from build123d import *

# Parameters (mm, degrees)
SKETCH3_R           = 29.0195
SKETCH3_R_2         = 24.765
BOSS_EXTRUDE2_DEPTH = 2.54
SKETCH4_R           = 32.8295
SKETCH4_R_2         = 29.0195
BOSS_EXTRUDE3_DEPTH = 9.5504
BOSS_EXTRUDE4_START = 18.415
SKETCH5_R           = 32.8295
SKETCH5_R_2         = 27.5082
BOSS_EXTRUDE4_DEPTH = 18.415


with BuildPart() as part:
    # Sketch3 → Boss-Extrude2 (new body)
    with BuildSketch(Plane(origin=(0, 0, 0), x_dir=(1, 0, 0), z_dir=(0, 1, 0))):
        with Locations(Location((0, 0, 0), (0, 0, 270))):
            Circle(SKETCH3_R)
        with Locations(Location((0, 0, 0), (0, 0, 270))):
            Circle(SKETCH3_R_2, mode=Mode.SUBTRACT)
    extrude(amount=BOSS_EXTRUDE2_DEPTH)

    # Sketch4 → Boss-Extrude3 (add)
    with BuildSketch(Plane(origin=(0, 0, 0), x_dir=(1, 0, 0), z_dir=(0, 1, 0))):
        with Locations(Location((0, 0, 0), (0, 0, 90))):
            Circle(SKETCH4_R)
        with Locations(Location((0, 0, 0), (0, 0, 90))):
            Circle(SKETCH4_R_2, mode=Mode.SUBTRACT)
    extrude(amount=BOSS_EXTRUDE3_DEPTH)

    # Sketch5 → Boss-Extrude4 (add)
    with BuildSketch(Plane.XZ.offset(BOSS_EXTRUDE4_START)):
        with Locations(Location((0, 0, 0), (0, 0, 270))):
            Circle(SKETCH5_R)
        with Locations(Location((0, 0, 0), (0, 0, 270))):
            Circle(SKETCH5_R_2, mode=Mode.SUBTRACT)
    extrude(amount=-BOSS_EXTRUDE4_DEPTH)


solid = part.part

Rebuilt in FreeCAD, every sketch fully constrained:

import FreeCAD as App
import Part
import Sketcher
Q = App.Units.Quantity

doc = App.newDocument("Part")
params = doc.addObject("Spreadsheet::Sheet", "Params")
for row, (alias, value) in enumerate([
    ("sketch1_diameter", "1.95 in"),
    ("sketch1_diameter2", "2.285 in"),
    ("pad1_length", "0.1 in"),
    ("sketch2_diameter", "2.585 in"),
    ("sketch2_diameter2", "2.285 in"),
    ("pad2_length", "0.376 in"),
    ("sketch3_diameter", "2.585 in"),
    ("sketch3_diameter2", "2.166 in"),
    ("pad3_length", "0.725 in"),
], start=1):
    params.set(f"A{row}", alias)
    params.set(f"B{row}", "=" + value)
    params.setAlias(f"B{row}", alias)

body = doc.addObject("PartDesign::Body", "Body")

# Sketch on XZ plane
sketch1 = body.newObject("Sketcher::SketchObject", "Sketch")
sketch1.AttachmentSupport = (doc.getObject("XZ_Plane"), [""])
sketch1.MapMode = "FlatFace"
sketch1.addGeometry([
    Part.Circle(App.Vector(0, 0, 0), App.Vector(0, 0, 1), 29),
    Part.Circle(App.Vector(0, 0, 0), App.Vector(0, 0, 1), 25),
], False)
sketch1.addConstraint([
    Sketcher.Constraint("Coincident", 0, 3, -1, 1),
    Sketcher.Constraint("Coincident", 1, 3, -1, 1),
    Sketcher.Constraint("Diameter", 1, Q("1.95 in")),
    Sketcher.Constraint("Diameter", 0, Q("2.285 in")),
])
sketch1.setExpression("Constraints[2]", "Params.sketch1_diameter")
sketch1.setExpression("Constraints[3]", "Params.sketch1_diameter2")
pad1 = body.newObject("PartDesign::Pad", "Pad")
pad1.Profile = sketch1
pad1.setExpression("Length", "Params.pad1_length")
pad1.Reversed = True

# Sketch on XZ plane
sketch2 = body.newObject("Sketcher::SketchObject", "Sketch001")
sketch2.AttachmentSupport = (doc.getObject("XZ_Plane"), [""])
sketch2.MapMode = "FlatFace"
sketch2.addGeometry([
    Part.Circle(App.Vector(0, 0, 0), App.Vector(0, 0, 1), 33),
    Part.Circle(App.Vector(0, 0, 0), App.Vector(0, 0, 1), 29),
], False)
sketch2.addConstraint([
    Sketcher.Constraint("Coincident", 0, 3, -1, 1),
    Sketcher.Constraint("Coincident", 1, 3, -1, 1),
    Sketcher.Constraint("Diameter", 0, Q("2.585 in")),
    Sketcher.Constraint("Diameter", 1, Q("2.285 in")),
])
sketch2.setExpression("Constraints[2]", "Params.sketch2_diameter")
sketch2.setExpression("Constraints[3]", "Params.sketch2_diameter2")
pad2 = body.newObject("PartDesign::Pad", "Pad001")
pad2.Profile = sketch2
pad2.setExpression("Length", "Params.pad2_length")
pad2.Reversed = True

# Sketch on XZ plane
sketch3 = body.newObject("Sketcher::SketchObject", "Sketch002")
sketch3.AttachmentSupport = (doc.getObject("XZ_Plane"), [""])
sketch3.MapMode = "FlatFace"
sketch3.AttachmentOffset = App.Placement(App.Vector(0, 0, 0.725 * 25.4), App.Rotation())
sketch3.addGeometry([
    Part.Circle(App.Vector(0, 0, 0), App.Vector(0, 0, 1), 33),
    Part.Circle(App.Vector(0, 0, 0), App.Vector(0, 0, 1), 28),
], False)
sketch3.addConstraint([
    Sketcher.Constraint("Coincident", 0, 3, -1, 1),
    Sketcher.Constraint("Coincident", 1, 3, -1, 1),
    Sketcher.Constraint("Diameter", 0, Q("2.585 in")),
    Sketcher.Constraint("Diameter", 1, Q("2.166 in")),
])
sketch3.setExpression("Constraints[2]", "Params.sketch3_diameter")
sketch3.setExpression("Constraints[3]", "Params.sketch3_diameter2")
pad3 = body.newObject("PartDesign::Pad", "Pad002")
pad3.Profile = sketch3
pad3.setExpression("Length", "Params.pad3_length")
pad3.Reversed = True

doc.recompute()
